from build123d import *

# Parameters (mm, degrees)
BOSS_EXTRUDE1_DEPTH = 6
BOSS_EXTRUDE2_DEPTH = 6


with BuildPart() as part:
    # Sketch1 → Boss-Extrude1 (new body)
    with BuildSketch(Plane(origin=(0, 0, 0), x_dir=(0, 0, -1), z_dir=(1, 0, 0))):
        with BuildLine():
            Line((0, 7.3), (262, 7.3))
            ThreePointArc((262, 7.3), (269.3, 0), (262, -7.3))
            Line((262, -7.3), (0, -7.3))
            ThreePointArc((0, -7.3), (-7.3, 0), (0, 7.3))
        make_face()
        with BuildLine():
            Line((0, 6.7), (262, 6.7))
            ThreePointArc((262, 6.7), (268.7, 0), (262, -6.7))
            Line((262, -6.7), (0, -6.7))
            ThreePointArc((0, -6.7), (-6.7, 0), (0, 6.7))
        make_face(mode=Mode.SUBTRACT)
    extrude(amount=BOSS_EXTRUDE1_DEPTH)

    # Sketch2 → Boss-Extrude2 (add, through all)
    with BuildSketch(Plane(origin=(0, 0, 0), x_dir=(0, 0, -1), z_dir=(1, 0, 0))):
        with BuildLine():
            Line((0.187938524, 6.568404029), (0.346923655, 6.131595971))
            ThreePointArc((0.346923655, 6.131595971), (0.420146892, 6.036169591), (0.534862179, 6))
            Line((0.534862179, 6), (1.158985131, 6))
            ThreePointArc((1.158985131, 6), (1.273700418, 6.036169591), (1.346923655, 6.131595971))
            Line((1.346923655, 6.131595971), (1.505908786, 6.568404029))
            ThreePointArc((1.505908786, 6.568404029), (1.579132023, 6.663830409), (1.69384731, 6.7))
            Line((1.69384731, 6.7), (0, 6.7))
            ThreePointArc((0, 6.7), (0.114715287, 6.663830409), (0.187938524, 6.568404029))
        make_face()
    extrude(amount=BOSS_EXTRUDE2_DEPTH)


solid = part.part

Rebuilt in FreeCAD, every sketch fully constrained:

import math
import FreeCAD as App
import Part
import Sketcher

V = App.Vector
Q = App.Units.Quantity

doc = App.newDocument("Part")
body = doc.addObject("PartDesign::Body", "Body")

sketch1 = body.newObject("Sketcher::SketchObject", "Sketch")
sketch1.AttachmentSupport = (doc.getObject("YZ_Plane"), [""])
sketch1.MapMode = "FlatFace"
sketch1.addGeometry(Part.LineSegment(V(7.3, -262, 0), V(7.3, 0, 0)), False)
sketch1.addGeometry(Part.ArcOfCircle(Part.Circle(V(0, 0, 0), V(0, 0, 1), 7.3), math.radians(0), math.radians(180)), False)
sketch1.addGeometry(Part.LineSegment(V(-7.3, 0, 0), V(-7.3, -262, 0)), False)
sketch1.addGeometry(Part.ArcOfCircle(Part.Circle(V(0, -262, 0), V(0, 0, 1), 7.3), math.radians(180), math.radians(360)), False)
sketch1.addGeometry(Part.LineSegment(V(6.7, 0, 0), V(6.7, -262, 0)), False)
sketch1.addGeometry(Part.ArcOfCircle(Part.Circle(V(0, -262, 0), V(0, 0, 1), 6.7), math.radians(180), math.radians(360)), False)
sketch1.addGeometry(Part.LineSegment(V(-6.7, -262, 0), V(-6.7, 0, 0)), False)
sketch1.addGeometry(Part.ArcOfCircle(Part.Circle(V(0, 0, 0), V(0, 0, 1), 6.7), math.radians(0), math.radians(180)), False)
sketch1.addConstraint(Sketcher.Constraint("Tangent", 0, 2, 1, 1))
sketch1.addConstraint(Sketcher.Constraint("Tangent", 1, 2, 2, 1))
sketch1.addConstraint(Sketcher.Constraint("Tangent", 2, 2, 3, 1))
sketch1.addConstraint(Sketcher.Constraint("Tangent", 3, 2, 0, 1))
sketch1.addConstraint(Sketcher.Constraint("Tangent", 4, 2, 5, 2))
sketch1.addConstraint(Sketcher.Constraint("Tangent", 5, 1, 6, 1))
sketch1.addConstraint(Sketcher.Constraint("Tangent", 6, 2, 7, 2))
sketch1.addConstraint(Sketcher.Constraint("Tangent", 7, 1, 4, 1))
sketch1.addConstraint(Sketcher.Constraint("Vertical", 0))
sketch1.addConstraint(Sketcher.Constraint("Vertical", 2))
sketch1.addConstraint(Sketcher.Constraint("Vertical", 4))
sketch1.addConstraint(Sketcher.Constraint("Vertical", 6))
sketch1.addConstraint(Sketcher.Constraint("Coincident", 1, 3, -1, 1))
sketch1.addConstraint(Sketcher.Constraint("Coincident", 7, 3, -1, 1))
sketch1.addConstraint(Sketcher.Constraint("Horizontal", 5, 3, 2, 2))
sketch1.addConstraint(Sketcher.Constraint("Radius", 1, Q("7.3 mm")))
sketch1.addConstraint(Sketcher.Constraint("Radius", 5, Q("6.7 mm")))
sketch1.addConstraint(Sketcher.Constraint("DistanceY", 0, 1, 0, 2, Q("262 mm")))
pad1 = body.newObject("PartDesign::Pad", "Pad")
pad1.Profile = sketch1
pad1.Length = 6

sketch2 = body.newObject("Sketcher::SketchObject", "Sketch001")
sketch2.AttachmentSupport = (doc.getObject("YZ_Plane"), [""])
sketch2.MapMode = "FlatFace"
sketch2.addGeometry(Part.LineSegment(V(6.568404, -0.187939, 0), V(6.131596, -0.346924, 0)), False)
sketch2.addGeometry(Part.ArcOfCircle(Part.Circle(V(6.2, -0.534862, 0), V(0, 0, 1), 0.2), math.radians(110), math.radians(180)), False)
sketch2.addGeometry(Part.LineSegment(V(6, -0.534862, 0), V(6, -1.158985, 0)), False)
sketch2.addGeometry(Part.ArcOfCircle(Part.Circle(V(6.2, -1.158985, 0), V(0, 0, 1), 0.2), math.radians(180), math.radians(250)), False)
sketch2.addGeometry(Part.LineSegment(V(6.131596, -1.346924, 0), V(6.568404, -1.505909, 0)), False)
sketch2.addGeometry(Part.ArcOfCircle(Part.Circle(V(6.5, -1.693847, 0), V(0, 0, 1), 0.2), math.radians(0), math.radians(70)), False)
sketch2.addGeometry(Part.LineSegment(V(6.7, -1.693847, 0), V(6.7, 0, 0)), False)
sketch2.addGeometry(Part.ArcOfCircle(Part.Circle(V(6.5, 0, 0), V(0, 0, 1), 0.2), math.radians(-70), math.radians(0)), False)
sketch2.addConstraint(Sketcher.Constraint("Tangent", 0, 2, 1, 1))
sketch2.addConstraint(Sketcher.Constraint("Tangent", 1, 2, 2, 1))
sketch2.addConstraint(Sketcher.Constraint("Tangent", 2, 2, 3, 1))
sketch2.addConstraint(Sketcher.Constraint("Tangent", 3, 2, 4, 1))
sketch2.addConstraint(Sketcher.Constraint("Tangent", 4, 2, 5, 2))
sketch2.addConstraint(Sketcher.Constraint("Tangent", 5, 1, 6, 1))
sketch2.addConstraint(Sketcher.Constraint("Tangent", 6, 2, 7, 2))
sketch2.addConstraint(Sketcher.Constraint("Tangent", 7, 1, 0, 1))
sketch2.addConstraint(Sketcher.Constraint("Vertical", 2))
sketch2.addConstraint(Sketcher.Constraint("Vertical", 6))
sketch2.addConstraint(Sketcher.Constraint("Equal", 1, 3))
sketch2.addConstraint(Sketcher.Constraint("Equal", 3, 5))
sketch2.addConstraint(Sketcher.Constraint("Equal", 5, 7))
sketch2.addConstraint(Sketcher.Constraint("PointOnObject", 7, 3, -1))
sketch2.addConstraint(Sketcher.Constraint("Vertical", 0, 2, 3, 2))
sketch2.addConstraint(Sketcher.Constraint("Radius", 1, Q("0.2 mm")))
sketch2.addConstraint(Sketcher.Constraint("Angle", 0, Q("-160 deg")))
sketch2.addConstraint(Sketcher.Constraint("DistanceX", -1, 1, 1, 2, Q("6 mm")))
sketch2.addConstraint(Sketcher.Constraint("DistanceX", -1, 1, 5, 3, Q("6.5 mm")))
sketch2.addConstraint(Sketcher.Constraint("DistanceY", 2, 2, 2, 1, Q("0.624123 mm")))
pad2 = body.newObject("PartDesign::Pad", "Pad001")
pad2.Profile = sketch2
pad2.Length = 6

doc.recompute()
